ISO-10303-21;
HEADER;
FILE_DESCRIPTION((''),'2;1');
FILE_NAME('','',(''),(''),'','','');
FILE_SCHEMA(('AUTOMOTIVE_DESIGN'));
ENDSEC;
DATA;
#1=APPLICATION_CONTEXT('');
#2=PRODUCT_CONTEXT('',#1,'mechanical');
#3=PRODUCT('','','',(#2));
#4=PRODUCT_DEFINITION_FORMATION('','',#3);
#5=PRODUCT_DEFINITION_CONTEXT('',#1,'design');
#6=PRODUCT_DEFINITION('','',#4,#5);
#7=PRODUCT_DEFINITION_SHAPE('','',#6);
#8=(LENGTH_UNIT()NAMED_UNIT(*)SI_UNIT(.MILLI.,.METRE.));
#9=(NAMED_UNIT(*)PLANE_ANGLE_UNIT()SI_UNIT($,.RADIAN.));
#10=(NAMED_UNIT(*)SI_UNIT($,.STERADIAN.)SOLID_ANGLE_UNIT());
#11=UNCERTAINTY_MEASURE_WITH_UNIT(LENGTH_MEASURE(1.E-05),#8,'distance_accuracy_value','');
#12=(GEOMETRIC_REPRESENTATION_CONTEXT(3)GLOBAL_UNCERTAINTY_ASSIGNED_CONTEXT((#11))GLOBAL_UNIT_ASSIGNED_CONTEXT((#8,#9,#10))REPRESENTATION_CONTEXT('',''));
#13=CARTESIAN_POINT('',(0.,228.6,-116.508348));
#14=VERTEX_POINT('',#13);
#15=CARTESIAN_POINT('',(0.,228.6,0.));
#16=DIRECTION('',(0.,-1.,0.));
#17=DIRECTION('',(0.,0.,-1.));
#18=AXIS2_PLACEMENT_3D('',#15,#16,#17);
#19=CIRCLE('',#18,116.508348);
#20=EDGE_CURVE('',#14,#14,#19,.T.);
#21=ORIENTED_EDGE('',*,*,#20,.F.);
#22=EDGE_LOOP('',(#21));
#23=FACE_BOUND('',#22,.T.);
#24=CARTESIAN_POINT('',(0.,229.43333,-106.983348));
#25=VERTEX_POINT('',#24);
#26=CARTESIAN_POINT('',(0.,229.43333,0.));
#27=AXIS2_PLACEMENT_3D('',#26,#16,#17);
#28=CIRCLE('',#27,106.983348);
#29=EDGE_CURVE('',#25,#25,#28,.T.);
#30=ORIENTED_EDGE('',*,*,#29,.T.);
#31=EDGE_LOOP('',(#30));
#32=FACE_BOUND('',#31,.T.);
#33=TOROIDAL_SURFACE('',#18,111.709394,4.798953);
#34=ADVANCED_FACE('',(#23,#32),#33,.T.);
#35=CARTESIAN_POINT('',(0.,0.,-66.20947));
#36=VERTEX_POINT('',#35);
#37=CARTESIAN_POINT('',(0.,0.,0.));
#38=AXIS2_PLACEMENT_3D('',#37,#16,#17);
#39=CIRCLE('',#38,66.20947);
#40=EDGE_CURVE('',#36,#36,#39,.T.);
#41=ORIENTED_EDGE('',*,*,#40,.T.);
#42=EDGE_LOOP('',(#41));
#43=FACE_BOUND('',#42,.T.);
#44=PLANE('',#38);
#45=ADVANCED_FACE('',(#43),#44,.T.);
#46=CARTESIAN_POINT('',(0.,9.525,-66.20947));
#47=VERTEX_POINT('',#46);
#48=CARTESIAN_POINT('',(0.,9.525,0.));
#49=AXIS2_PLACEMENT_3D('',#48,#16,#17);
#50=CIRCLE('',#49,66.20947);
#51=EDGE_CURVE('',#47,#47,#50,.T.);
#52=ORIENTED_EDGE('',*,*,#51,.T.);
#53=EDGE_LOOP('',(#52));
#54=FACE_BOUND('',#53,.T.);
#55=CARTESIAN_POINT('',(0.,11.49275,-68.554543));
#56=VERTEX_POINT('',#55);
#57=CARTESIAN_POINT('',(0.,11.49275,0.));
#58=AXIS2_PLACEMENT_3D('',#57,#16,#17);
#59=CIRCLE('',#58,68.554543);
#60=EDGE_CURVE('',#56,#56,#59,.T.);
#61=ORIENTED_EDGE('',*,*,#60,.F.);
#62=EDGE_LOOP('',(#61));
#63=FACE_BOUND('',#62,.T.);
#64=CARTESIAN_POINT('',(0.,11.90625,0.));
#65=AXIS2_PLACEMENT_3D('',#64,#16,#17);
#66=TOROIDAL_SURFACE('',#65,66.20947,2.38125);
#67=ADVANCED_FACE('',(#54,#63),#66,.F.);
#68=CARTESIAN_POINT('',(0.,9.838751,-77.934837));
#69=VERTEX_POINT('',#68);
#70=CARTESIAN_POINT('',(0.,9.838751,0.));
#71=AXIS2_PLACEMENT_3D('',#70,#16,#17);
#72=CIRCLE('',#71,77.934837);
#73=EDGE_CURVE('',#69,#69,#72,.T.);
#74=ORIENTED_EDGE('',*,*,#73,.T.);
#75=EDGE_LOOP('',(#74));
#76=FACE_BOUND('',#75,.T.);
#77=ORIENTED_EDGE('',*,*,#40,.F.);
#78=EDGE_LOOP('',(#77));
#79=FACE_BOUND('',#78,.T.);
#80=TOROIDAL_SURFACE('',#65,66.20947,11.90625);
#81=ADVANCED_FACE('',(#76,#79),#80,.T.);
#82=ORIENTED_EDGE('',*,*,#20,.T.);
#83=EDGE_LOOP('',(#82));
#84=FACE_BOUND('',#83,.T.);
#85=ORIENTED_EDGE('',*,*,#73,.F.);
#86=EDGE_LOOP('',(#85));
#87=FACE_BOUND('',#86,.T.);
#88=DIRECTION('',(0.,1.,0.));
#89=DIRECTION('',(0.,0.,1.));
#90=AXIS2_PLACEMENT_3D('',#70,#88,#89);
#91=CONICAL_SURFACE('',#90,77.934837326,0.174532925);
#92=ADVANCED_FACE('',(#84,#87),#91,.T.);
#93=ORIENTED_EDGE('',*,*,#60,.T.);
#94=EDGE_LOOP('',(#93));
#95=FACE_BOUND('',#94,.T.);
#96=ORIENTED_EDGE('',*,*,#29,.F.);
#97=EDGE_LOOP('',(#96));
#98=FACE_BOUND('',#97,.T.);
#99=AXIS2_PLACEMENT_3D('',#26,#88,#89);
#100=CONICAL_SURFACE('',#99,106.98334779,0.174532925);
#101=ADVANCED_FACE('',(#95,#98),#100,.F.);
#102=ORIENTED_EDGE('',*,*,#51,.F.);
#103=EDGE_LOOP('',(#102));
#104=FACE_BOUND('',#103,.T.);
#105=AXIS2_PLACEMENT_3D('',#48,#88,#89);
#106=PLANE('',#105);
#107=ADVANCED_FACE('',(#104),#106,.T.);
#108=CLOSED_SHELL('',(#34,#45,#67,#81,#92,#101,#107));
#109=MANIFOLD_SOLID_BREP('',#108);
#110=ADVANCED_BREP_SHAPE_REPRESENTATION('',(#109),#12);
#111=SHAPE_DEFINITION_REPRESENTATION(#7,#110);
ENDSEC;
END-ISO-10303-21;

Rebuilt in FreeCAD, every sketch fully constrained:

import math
import FreeCAD as App
import Part
import Sketcher
from FreeCAD import Vector
Q = App.Units.Quantity

doc = App.newDocument("Part")
params = doc.addObject("Spreadsheet::Sheet", "Params")
for row, (alias, value) in enumerate([
    ("sketch1_radius", "0.46875 in"),
    ("sketch1_radius2", "0.09375 in"),
    ("revolution_angle", "360 deg"),
], start=1):
    params.set(f"A{row}", alias)
    params.set(f"B{row}", "=" + value)
    params.setAlias(f"B{row}", alias)

body = doc.addObject("PartDesign::Body", "Body")

# Sketch on XY plane
sketch1 = doc.addObject("Sketcher::SketchObject", "Sketch")
body.addObject(sketch1)
sketch1.AttachmentSupport = (doc.XY_Plane, [""])
sketch1.MapMode = "FlatFace"
sketch1.addGeometry(Part.LineSegment(Vector(0, 0, 0), Vector(66.20947, 0, 0)), False)
sketch1.addGeometry(Part.ArcOfCircle(Part.Circle(Vector(66.20947, 11.90625, 0), Vector(0, 0, 1), 11.90625), math.radians(-90), math.radians(-10)), False)
sketch1.addGeometry(Part.LineSegment(Vector(77.934837, 9.838751, 0), Vector(116.508348, 228.6, 0)), False)
sketch1.addGeometry(Part.ArcOfCircle(Part.Circle(Vector(111.709394, 228.6, 0), Vector(0, 0, 1), 4.798953), math.radians(0), math.radians(170)), False)
sketch1.addGeometry(Part.LineSegment(Vector(106.983348, 229.43333, 0), Vector(68.554543, 11.49275, 0)), False)
sketch1.addGeometry(Part.ArcOfCircle(Part.Circle(Vector(66.20947, 11.90625, 0), Vector(0, 0, 1), 2.38125), math.radians(-90), math.radians(-10)), False)
sketch1.addGeometry(Part.LineSegment(Vector(66.20947, 9.525, 0), Vector(0, 9.525, 0)), False)
sketch1.addGeometry(Part.LineSegment(Vector(0, 9.525, 0), Vector(0, 0, 0)), False)
sketch1.addConstraint(Sketcher.Constraint("Tangent", 0, 2, 1, 1))
sketch1.addConstraint(Sketcher.Constraint("Tangent", 1, 2, 2, 1))
sketch1.addConstraint(Sketcher.Constraint("Coincident", 2, 2, 3, 1))
sketch1.addConstraint(Sketcher.Constraint("Tangent", 3, 2, 4, 1))
sketch1.addConstraint(Sketcher.Constraint("Tangent", 4, 2, 5, 2))
sketch1.addConstraint(Sketcher.Constraint("Tangent", 5, 1, 6, 1))
sketch1.addConstraint(Sketcher.Constraint("Coincident", 6, 2, 7, 1))
sketch1.addConstraint(Sketcher.Constraint("Coincident", 7, 2, 0, 1))
sketch1.addConstraint(Sketcher.Constraint("Horizontal", 0))
sketch1.addConstraint(Sketcher.Constraint("Horizontal", 6))
sketch1.addConstraint(Sketcher.Constraint("Vertical", 7))
sketch1.addConstraint(Sketcher.Constraint("Coincident", 7, 2, -1, 1))
sketch1.addConstraint(Sketcher.Constraint("Coincident", 5, 3, 1, 3))
sketch1.addConstraint(Sketcher.Constraint("Parallel", 2, 4))
sketch1.addConstraint(Sketcher.Constraint("Horizontal", 3, 3, 2, 2))
sketch1.addConstraint(Sketcher.Constraint("DistanceY", -1, 1, 3, 3, Q("9 in")))
sketch1.addConstraint(Sketcher.Constraint("Angle", 2, Q("80 deg")))
sketch1.addConstraint(Sketcher.Constraint("Radius", 1, Q("0.46875 in")))
sketch1.addConstraint(Sketcher.Constraint("Radius", 5, Q("0.09375 in")))
sketch1.addConstraint(Sketcher.Constraint("DistanceX", 0, 1, 0, 2, Q("66.20947 mm")))
sketch1.setExpression("Constraints[17]", "Params.sketch1_radius")
sketch1.setExpression("Constraints[18]", "Params.sketch1_radius2")
revolution = doc.addObject("PartDesign::Revolution", "Revolution")
body.addObject(revolution)
revolution.Profile = sketch1
revolution.ReferenceAxis = (sketch1, ["V_Axis"])
revolution.setExpression("Angle", "Params.revolution_angle")

doc.recompute()
